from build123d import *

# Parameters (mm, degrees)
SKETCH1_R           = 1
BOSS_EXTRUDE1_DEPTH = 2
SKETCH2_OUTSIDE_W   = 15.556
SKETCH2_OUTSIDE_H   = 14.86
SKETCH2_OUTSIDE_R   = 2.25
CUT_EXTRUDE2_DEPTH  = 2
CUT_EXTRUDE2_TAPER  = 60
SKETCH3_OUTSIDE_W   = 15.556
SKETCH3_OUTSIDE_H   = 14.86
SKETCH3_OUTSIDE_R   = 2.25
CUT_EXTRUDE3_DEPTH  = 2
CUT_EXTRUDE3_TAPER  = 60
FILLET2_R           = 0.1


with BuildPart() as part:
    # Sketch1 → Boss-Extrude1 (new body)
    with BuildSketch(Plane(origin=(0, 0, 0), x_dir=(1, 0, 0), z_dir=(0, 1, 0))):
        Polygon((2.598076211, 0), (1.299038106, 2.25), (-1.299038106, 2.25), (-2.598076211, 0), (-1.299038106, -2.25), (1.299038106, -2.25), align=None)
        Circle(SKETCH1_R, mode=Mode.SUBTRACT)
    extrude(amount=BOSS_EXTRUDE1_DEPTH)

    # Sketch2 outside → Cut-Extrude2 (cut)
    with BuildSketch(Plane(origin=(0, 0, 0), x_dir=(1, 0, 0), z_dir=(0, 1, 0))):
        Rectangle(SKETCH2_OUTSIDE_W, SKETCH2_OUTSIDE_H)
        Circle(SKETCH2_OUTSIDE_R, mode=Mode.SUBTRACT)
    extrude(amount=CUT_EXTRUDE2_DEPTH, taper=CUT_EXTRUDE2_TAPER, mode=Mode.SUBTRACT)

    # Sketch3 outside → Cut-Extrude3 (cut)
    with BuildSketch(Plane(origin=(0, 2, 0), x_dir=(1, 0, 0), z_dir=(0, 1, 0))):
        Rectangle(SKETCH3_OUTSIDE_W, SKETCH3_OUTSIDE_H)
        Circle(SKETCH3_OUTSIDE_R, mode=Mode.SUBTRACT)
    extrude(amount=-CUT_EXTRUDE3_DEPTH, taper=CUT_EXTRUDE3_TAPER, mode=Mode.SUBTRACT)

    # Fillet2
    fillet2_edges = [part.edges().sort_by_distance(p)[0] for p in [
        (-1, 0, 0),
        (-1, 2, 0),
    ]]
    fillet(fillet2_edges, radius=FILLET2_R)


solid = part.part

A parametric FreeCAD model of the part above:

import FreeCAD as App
import Part
import Sketcher
from FreeCAD import Vector
Q = App.Units.Quantity


def edges_at(feature, points):
    """Names of the edges that pass closest to the given points."""
    edges = feature.Shape.Edges
    near = lambda p: min(range(len(edges)), key=lambda i: edges[i].distToShape(Part.Vertex(*p))[0])
    return sorted({f"Edge{near(p) + 1}" for p in points})

doc = App.newDocument("Part")
body = doc.addObject("PartDesign::Body", "Body")

sketch1 = body.newObject("Sketcher::SketchObject", "Sketch")
sketch1.AttachmentSupport = (doc.getObject("XZ_Plane"), [""])
sketch1.MapMode = "FlatFace"
sketch1.addGeometry(Part.LineSegment(Vector(2.6, 0, 0), Vector(1.3, -2.2, 0)), False)
sketch1.addGeometry(Part.LineSegment(Vector(1.3, -2.2, 0), Vector(-1.3, -2.2, 0)), False)
sketch1.addGeometry(Part.LineSegment(Vector(-1.3, -2.2, 0), Vector(-2.6, 0, 0)), False)
sketch1.addGeometry(Part.LineSegment(Vector(-2.6, 0, 0), Vector(-1.3, 2.2, 0)), False)
sketch1.addGeometry(Part.LineSegment(Vector(-1.3, 2.2, 0), Vector(1.3, 2.2, 0)), False)
sketch1.addGeometry(Part.LineSegment(Vector(1.3, 2.2, 0), Vector(2.6, 0, 0)), False)
sketch1.addGeometry(Part.Circle(Vector(0, 0, 0), Vector(0, 0, 1), 1), False)
sketch1.addConstraint(Sketcher.Constraint("Coincident", 0, 2, 1, 1))
sketch1.addConstraint(Sketcher.Constraint("Coincident", 1, 2, 2, 1))
sketch1.addConstraint(Sketcher.Constraint("Coincident", 2, 2, 3, 1))
sketch1.addConstraint(Sketcher.Constraint("Coincident", 3, 2, 4, 1))
sketch1.addConstraint(Sketcher.Constraint("Coincident", 4, 2, 5, 1))
sketch1.addConstraint(Sketcher.Constraint("Coincident", 5, 2, 0, 1))
sketch1.addConstraint(Sketcher.Constraint("Horizontal", 1))
sketch1.addConstraint(Sketcher.Constraint("Horizontal", 4))
sketch1.addConstraint(Sketcher.Constraint("Coincident", 6, 3, -1, 1))
sketch1.addConstraint(Sketcher.Constraint("Symmetric", 0, 2, 3, 2, -1, 1))
sketch1.addConstraint(Sketcher.Constraint("Symmetric", 2, 2, 5, 2, -1, 1))
sketch1.addConstraint(Sketcher.Constraint("PointOnObject", 2, 2, -1))
sketch1.addConstraint(Sketcher.Constraint("Parallel", 2, 5))
sketch1.addConstraint(Sketcher.Constraint("Vertical", 1, 2, 3, 2))
sketch1.addConstraint(Sketcher.Constraint("Diameter", 6, Q("2 mm")))
sketch1.addConstraint(Sketcher.Constraint("Angle", 0, Q("-120 deg")))
sketch1.addConstraint(Sketcher.Constraint("DistanceY", 1, 2, 3, 2, Q("4.5 mm")))
sketch1.addConstraint(Sketcher.Constraint("DistanceX", 1, 2, 1, 1, Q("2.598076 mm")))
pad1 = body.newObject("PartDesign::Pad", "Pad")
pad1.Profile = sketch1
pad1.Length = 2
pad1.Reversed = True

sketch2 = body.newObject("Sketcher::SketchObject", "Sketch001")
sketch2.AttachmentSupport = (doc.getObject("XZ_Plane"), [""])
sketch2.MapMode = "FlatFace"
sketch2.addGeometry(Part.LineSegment(Vector(-7.8, -7.4, 0), Vector(-7.8, 7.4, 0)), False)
sketch2.addGeometry(Part.LineSegment(Vector(-7.8, 7.4, 0), Vector(7.8, 7.4, 0)), False)
sketch2.addGeometry(Part.LineSegment(Vector(7.8, 7.4, 0), Vector(7.8, -7.4, 0)), False)
sketch2.addGeometry(Part.LineSegment(Vector(7.8, -7.4, 0), Vector(-7.8, -7.4, 0)), False)
sketch2.addGeometry(Part.Circle(Vector(0, 0, 0), Vector(0, 0, 1), 2.2), False)
sketch2.addConstraint(Sketcher.Constraint("Coincident", 0, 2, 1, 1))
sketch2.addConstraint(Sketcher.Constraint("Coincident", 1, 2, 2, 1))
sketch2.addConstraint(Sketcher.Constraint("Coincident", 2, 2, 3, 1))
sketch2.addConstraint(Sketcher.Constraint("Coincident", 3, 2, 0, 1))
sketch2.addConstraint(Sketcher.Constraint("Vertical", 0))
sketch2.addConstraint(Sketcher.Constraint("Horizontal", 1))
sketch2.addConstraint(Sketcher.Constraint("Vertical", 2))
sketch2.addConstraint(Sketcher.Constraint("Horizontal", 3))
sketch2.addConstraint(Sketcher.Constraint("Coincident", 4, 3, -1, 1))
sketch2.addConstraint(Sketcher.Constraint("Symmetric", 0, 2, 2, 2, -1, 1))
sketch2.addConstraint(Sketcher.Constraint("Diameter", 4, Q("4.5 mm")))
sketch2.addConstraint(Sketcher.Constraint("DistanceY", 0, 1, 0, 2, Q("14.86 mm")))
sketch2.addConstraint(Sketcher.Constraint("DistanceX", 1, 1, 1, 2, Q("15.556 mm")))
pocket1 = body.newObject("PartDesign::Pocket", "Pocket")
pocket1.Profile = sketch2
pocket1.Length = 2
pocket1.TaperAngle = 60

sketch3 = body.newObject("Sketcher::SketchObject", "Sketch002")
sketch3.AttachmentSupport = (doc.getObject("XZ_Plane"), [""])
sketch3.MapMode = "FlatFace"
sketch3.AttachmentOffset = App.Placement(Vector(0, 0, -2), App.Rotation())
sketch3.addGeometry(Part.LineSegment(Vector(-7.8, -7.4, 0), Vector(-7.8, 7.4, 0)), False)
sketch3.addGeometry(Part.LineSegment(Vector(-7.8, 7.4, 0), Vector(7.8, 7.4, 0)), False)
sketch3.addGeometry(Part.LineSegment(Vector(7.8, 7.4, 0), Vector(7.8, -7.4, 0)), False)
sketch3.addGeometry(Part.LineSegment(Vector(7.8, -7.4, 0), Vector(-7.8, -7.4, 0)), False)
sketch3.addGeometry(Part.Circle(Vector(0, 0, 0), Vector(0, 0, 1), 2.2), False)
sketch3.addConstraint(Sketcher.Constraint("Coincident", 0, 2, 1, 1))
sketch3.addConstraint(Sketcher.Constraint("Coincident", 1, 2, 2, 1))
sketch3.addConstraint(Sketcher.Constraint("Coincident", 2, 2, 3, 1))
sketch3.addConstraint(Sketcher.Constraint("Coincident", 3, 2, 0, 1))
sketch3.addConstraint(Sketcher.Constraint("Vertical", 0))
sketch3.addConstraint(Sketcher.Constraint("Horizontal", 1))
sketch3.addConstraint(Sketcher.Constraint("Vertical", 2))
sketch3.addConstraint(Sketcher.Constraint("Horizontal", 3))
sketch3.addConstraint(Sketcher.Constraint("Coincident", 4, 3, -1, 1))
sketch3.addConstraint(Sketcher.Constraint("Symmetric", 0, 2, 2, 2, -1, 1))
sketch3.addConstraint(Sketcher.Constraint("Diameter", 4, Q("4.5 mm")))
sketch3.addConstraint(Sketcher.Constraint("DistanceY", 0, 1, 0, 2, Q("14.86 mm")))
sketch3.addConstraint(Sketcher.Constraint("DistanceX", 1, 1, 1, 2, Q("15.556 mm")))
pocket2 = body.newObject("PartDesign::Pocket", "Pocket001")
pocket2.Profile = sketch3
pocket2.Length = 2
pocket2.Reversed = True
pocket2.TaperAngle = 60
doc.recompute()

fillet = body.newObject("PartDesign::Fillet", "Fillet")
fillet.Base = (pocket2, edges_at(pocket2, [(-1, 0, 0), (-1, 2, 0)]))
fillet.Radius = 0.1

doc.recompute()
